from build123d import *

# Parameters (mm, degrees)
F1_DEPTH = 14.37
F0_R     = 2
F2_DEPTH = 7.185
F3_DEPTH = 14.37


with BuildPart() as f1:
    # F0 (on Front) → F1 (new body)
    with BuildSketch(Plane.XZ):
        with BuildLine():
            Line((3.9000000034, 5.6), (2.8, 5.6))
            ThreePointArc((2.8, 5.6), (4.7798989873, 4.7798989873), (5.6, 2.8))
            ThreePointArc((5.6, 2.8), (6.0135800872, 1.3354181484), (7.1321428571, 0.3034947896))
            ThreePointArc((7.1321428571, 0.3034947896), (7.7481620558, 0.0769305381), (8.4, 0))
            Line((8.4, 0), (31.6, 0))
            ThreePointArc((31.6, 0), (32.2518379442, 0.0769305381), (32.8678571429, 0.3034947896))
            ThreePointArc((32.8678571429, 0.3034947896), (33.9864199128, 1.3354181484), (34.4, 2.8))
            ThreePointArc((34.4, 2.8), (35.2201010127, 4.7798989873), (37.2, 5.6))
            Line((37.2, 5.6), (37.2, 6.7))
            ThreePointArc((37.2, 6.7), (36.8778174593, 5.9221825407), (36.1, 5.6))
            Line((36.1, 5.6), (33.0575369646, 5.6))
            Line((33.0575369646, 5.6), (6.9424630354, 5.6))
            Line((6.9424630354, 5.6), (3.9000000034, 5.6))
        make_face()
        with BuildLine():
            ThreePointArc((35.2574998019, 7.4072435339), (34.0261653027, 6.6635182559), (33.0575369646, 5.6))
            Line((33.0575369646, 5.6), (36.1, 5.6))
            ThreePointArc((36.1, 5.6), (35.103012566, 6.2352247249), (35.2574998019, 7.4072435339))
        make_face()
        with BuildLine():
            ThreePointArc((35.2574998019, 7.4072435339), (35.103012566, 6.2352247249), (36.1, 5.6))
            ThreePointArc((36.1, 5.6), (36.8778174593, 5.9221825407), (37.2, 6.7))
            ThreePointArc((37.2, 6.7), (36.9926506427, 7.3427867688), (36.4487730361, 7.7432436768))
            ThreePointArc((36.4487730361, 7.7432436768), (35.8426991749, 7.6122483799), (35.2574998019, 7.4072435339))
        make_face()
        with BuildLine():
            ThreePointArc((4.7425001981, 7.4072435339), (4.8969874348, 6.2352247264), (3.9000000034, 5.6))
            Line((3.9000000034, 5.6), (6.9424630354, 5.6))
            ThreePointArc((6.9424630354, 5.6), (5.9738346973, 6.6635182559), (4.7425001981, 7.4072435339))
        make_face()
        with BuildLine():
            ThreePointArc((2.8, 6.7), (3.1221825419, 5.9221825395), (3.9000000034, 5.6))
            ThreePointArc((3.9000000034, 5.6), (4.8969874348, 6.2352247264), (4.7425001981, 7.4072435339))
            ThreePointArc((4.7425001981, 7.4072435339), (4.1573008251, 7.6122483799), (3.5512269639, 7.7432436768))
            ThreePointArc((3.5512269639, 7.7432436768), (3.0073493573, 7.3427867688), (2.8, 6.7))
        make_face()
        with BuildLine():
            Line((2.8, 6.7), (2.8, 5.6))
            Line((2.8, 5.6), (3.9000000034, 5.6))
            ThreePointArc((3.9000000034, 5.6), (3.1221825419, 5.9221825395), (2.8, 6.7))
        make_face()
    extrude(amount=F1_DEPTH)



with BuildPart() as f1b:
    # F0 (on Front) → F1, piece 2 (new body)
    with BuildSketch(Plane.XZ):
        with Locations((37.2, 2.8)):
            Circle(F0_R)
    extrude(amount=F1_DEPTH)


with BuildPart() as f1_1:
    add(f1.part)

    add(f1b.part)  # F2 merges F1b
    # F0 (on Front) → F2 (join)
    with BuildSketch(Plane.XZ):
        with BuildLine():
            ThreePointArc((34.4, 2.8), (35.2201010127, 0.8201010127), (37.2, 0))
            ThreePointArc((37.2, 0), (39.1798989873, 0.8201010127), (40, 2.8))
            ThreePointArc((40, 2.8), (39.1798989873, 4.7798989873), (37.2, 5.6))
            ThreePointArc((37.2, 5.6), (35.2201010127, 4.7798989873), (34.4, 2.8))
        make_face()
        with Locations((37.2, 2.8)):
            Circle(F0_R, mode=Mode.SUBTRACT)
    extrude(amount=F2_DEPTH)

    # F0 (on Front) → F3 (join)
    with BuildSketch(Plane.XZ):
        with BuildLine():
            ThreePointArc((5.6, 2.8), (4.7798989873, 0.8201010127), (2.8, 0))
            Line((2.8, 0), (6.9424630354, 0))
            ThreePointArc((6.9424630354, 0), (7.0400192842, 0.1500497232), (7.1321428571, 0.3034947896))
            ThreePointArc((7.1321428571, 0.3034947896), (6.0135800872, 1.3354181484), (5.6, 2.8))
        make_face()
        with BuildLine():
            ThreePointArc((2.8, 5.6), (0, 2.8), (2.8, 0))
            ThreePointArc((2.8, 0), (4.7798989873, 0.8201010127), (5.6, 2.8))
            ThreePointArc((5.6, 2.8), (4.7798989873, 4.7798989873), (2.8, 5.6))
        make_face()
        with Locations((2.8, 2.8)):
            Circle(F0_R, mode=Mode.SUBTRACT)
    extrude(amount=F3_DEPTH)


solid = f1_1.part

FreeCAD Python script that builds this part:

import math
import FreeCAD as App
import Part
import Sketcher

V = App.Vector
Q = App.Units.Quantity

doc = App.newDocument("Part")
body = doc.addObject("PartDesign::Body", "Body")

# Sketch on XZ plane
sketch1 = body.newObject("Sketcher::SketchObject", "Sketch")
sketch1.AttachmentSupport = (doc.getObject("XZ_Plane"), [""])
sketch1.MapMode = "FlatFace"
sketch1.addGeometry(Part.ArcOfCircle(Part.Circle(V(2.8, 2.8, 0), V(0, 0, 1), 2.8), math.radians(0), math.radians(90)), False)
sketch1.addGeometry(Part.ArcOfCircle(Part.Circle(V(8.4, 2.8, 0), V(0, 0, 1), 2.8), math.radians(180), math.radians(243.076135)), False)
sketch1.addGeometry(Part.ArcOfCircle(Part.Circle(V(8.4, 2.8, 0), V(0, 0, 1), 2.8), math.radians(-116.923865), math.radians(-90)), False)
sketch1.addGeometry(Part.LineSegment(V(8.4, 0, 0), V(31.6, 0, 0)), False)
sketch1.addGeometry(Part.ArcOfCircle(Part.Circle(V(31.6, 2.8, 0), V(0, 0, 1), 2.8), math.radians(-90), math.radians(-63.076135)), False)
sketch1.addGeometry(Part.ArcOfCircle(Part.Circle(V(31.6, 2.8, 0), V(0, 0, 1), 2.8), math.radians(-63.076135), math.radians(0)), False)
sketch1.addGeometry(Part.ArcOfCircle(Part.Circle(V(37.2, 2.8, 0), V(0, 0, 1), 2.8), math.radians(90), math.radians(180)), False)
sketch1.addGeometry(Part.LineSegment(V(37.2, 5.6, 0), V(37.2, 6.7, 0)), False)
sketch1.addGeometry(Part.ArcOfCircle(Part.Circle(V(36.1, 6.7, 0), V(0, 0, 1), 1.1), math.radians(0), math.radians(71.514395)), False)
sketch1.addGeometry(Part.ArcOfCircle(Part.Circle(V(37.2, 2.8, 0), V(0, 0, 1), 5), math.radians(98.641148), math.radians(112.8612)), False)
sketch1.addGeometry(Part.ArcOfCircle(Part.Circle(V(37.2, 2.8, 0), V(0, 0, 1), 5), math.radians(112.8612), math.radians(145.944202)), False)
sketch1.addGeometry(Part.LineSegment(V(33.057537, 5.6, 0), V(6.942463, 5.6, 0)), False)
sketch1.addGeometry(Part.ArcOfCircle(Part.Circle(V(2.8, 2.8, 0), V(0, 0, 1), 5), math.radians(34.055798), math.radians(67.1388)), False)
sketch1.addGeometry(Part.ArcOfCircle(Part.Circle(V(2.8, 2.8, 0), V(0, 0, 1), 5), math.radians(67.1388), math.radians(81.358852)), False)
sketch1.addGeometry(Part.ArcOfCircle(Part.Circle(V(3.9, 6.7, 0), V(0, 0, 1), 1.1), math.radians(108.485605), math.radians(180)), False)
sketch1.addGeometry(Part.LineSegment(V(2.8, 6.7, 0), V(2.8, 5.6, 0)), False)
sketch1.addConstraint(Sketcher.Constraint("Tangent", 0, 1, 1, 1))
sketch1.addConstraint(Sketcher.Constraint("Tangent", 1, 2, 2, 1))
sketch1.addConstraint(Sketcher.Constraint("Tangent", 2, 2, 3, 1))
sketch1.addConstraint(Sketcher.Constraint("Tangent", 3, 2, 4, 1))
sketch1.addConstraint(Sketcher.Constraint("Tangent", 4, 2, 5, 1))
sketch1.addConstraint(Sketcher.Constraint("Tangent", 5, 2, 6, 2))
sketch1.addConstraint(Sketcher.Constraint("Coincident", 6, 1, 7, 1))
sketch1.addConstraint(Sketcher.Constraint("Tangent", 7, 2, 8, 1))
sketch1.addConstraint(Sketcher.Constraint("Coincident", 8, 2, 9, 1))
sketch1.addConstraint(Sketcher.Constraint("Tangent", 9, 2, 10, 1))
sketch1.addConstraint(Sketcher.Constraint("Coincident", 10, 2, 11, 1))
sketch1.addConstraint(Sketcher.Constraint("Coincident", 11, 2, 12, 1))
sketch1.addConstraint(Sketcher.Constraint("Tangent", 12, 2, 13, 1))
sketch1.addConstraint(Sketcher.Constraint("Coincident", 13, 2, 14, 1))
sketch1.addConstraint(Sketcher.Constraint("Tangent", 14, 2, 15, 1))
sketch1.addConstraint(Sketcher.Constraint("Coincident", 15, 2, 0, 2))
sketch1.addConstraint(Sketcher.Constraint("Horizontal", 3))
sketch1.addConstraint(Sketcher.Constraint("Vertical", 7))
sketch1.addConstraint(Sketcher.Constraint("Horizontal", 11))
sketch1.addConstraint(Sketcher.Constraint("Vertical", 15))
sketch1.addConstraint(Sketcher.Constraint("Coincident", 9, 3, 6, 3))
sketch1.addConstraint(Sketcher.Constraint("Coincident", 12, 3, 0, 3))
sketch1.addConstraint(Sketcher.Constraint("Equal", 0, 1))
sketch1.addConstraint(Sketcher.Constraint("Equal", 1, 2))
sketch1.addConstraint(Sketcher.Constraint("Equal", 2, 4))
sketch1.addConstraint(Sketcher.Constraint("Equal", 4, 5))
sketch1.addConstraint(Sketcher.Constraint("Equal", 5, 6))
sketch1.addConstraint(Sketcher.Constraint("Equal", 9, 10))
sketch1.addConstraint(Sketcher.Constraint("Equal", 10, 12))
sketch1.addConstraint(Sketcher.Constraint("Equal", 12, 13))
sketch1.addConstraint(Sketcher.Constraint("Equal", 8, 14))
sketch1.addConstraint(Sketcher.Constraint("PointOnObject", 2, 2, -1))
sketch1.addConstraint(Sketcher.Constraint("Horizontal", 0, 3, 1, 3))
sketch1.addConstraint(Sketcher.Constraint("Horizontal", 5, 3, 6, 3))
sketch1.addConstraint(Sketcher.Constraint("Horizontal", 8, 3, 14, 3))
sketch1.addConstraint(Sketcher.Constraint("Horizontal", 1, 2, 4, 2))
sketch1.addConstraint(Sketcher.Constraint("Horizontal", 6, 1, 10, 2))
sketch1.addConstraint(Sketcher.Constraint("Horizontal", 9, 2, 12, 2))
sketch1.addConstraint(Sketcher.Constraint("Horizontal", 8, 2, 13, 2))
sketch1.addConstraint(Sketcher.Constraint("Vertical", 10, 3, 6, 1))
sketch1.addConstraint(Sketcher.Constraint("Radius", 9, Q("5 mm")))
sketch1.addConstraint(Sketcher.Constraint("Radius", 0, Q("2.8 mm")))
sketch1.addConstraint(Sketcher.Constraint("Radius", 8, Q("1.1 mm")))
sketch1.addConstraint(Sketcher.Constraint("DistanceX", 3, 1, 3, 2, Q("23.2 mm")))
sketch1.addConstraint(Sketcher.Constraint("DistanceY", 7, 1, 7, 2, Q("1.1 mm")))
sketch1.addConstraint(Sketcher.Constraint("DistanceX", -1, 1, 0, 3, Q("2.8 mm")))
sketch1.addConstraint(Sketcher.Constraint("DistanceY", 9, 2, 8, 2, Q("0.336 mm")))
sketch1.addConstraint(Sketcher.Constraint("DistanceX", -1, 1, 1, 2, Q("7.132143 mm")))
pad1 = body.newObject("PartDesign::Pad", "Pad")
pad1.Profile = sketch1
pad1.Length = 14.37
body2 = doc.addObject("PartDesign::Body", "Body001")

# Sketch on XZ plane
sketch2 = body2.newObject("Sketcher::SketchObject", "Sketch001")
sketch2.AttachmentSupport = (doc.getObject("XZ_Plane001"), [""])
sketch2.MapMode = "FlatFace"
sketch2.addGeometry(Part.Circle(V(37.2, 2.8, 0), V(0, 0, 1), 2), False)
sketch2.addConstraint(Sketcher.Constraint("Diameter", 0, Q("4 mm")))
sketch2.addConstraint(Sketcher.Constraint("DistanceX", -1, 1, 0, 3, Q("37.2 mm")))
sketch2.addConstraint(Sketcher.Constraint("DistanceY", -1, 1, 0, 3, Q("2.8 mm")))
pad2 = body2.newObject("PartDesign::Pad", "Pad001")
pad2.Profile = sketch2
pad2.Length = 14.37
body.AllowCompound = True
doc.recompute()

boolean = body.newObject("PartDesign::Boolean", "Boolean")
boolean.Type = "Fuse"
boolean.addObjects([body2])

# Sketch on XZ plane
sketch3 = body.newObject("Sketcher::SketchObject", "Sketch002")
sketch3.AttachmentSupport = (doc.getObject("XZ_Plane"), [""])
sketch3.MapMode = "FlatFace"
sketch3.addGeometry(Part.ArcOfCircle(Part.Circle(V(37.2, 2.8, 0), V(0, 0, 1), 2.8), math.radians(180), math.radians(270)), False)
sketch3.addGeometry(Part.ArcOfCircle(Part.Circle(V(37.2, 2.8, 0), V(0, 0, 1), 2.8), math.radians(-90), math.radians(0)), False)
sketch3.addGeometry(Part.ArcOfCircle(Part.Circle(V(37.2, 2.8, 0), V(0, 0, 1), 2.8), math.radians(0), math.radians(90)), False)
sketch3.addGeometry(Part.ArcOfCircle(Part.Circle(V(37.2, 2.8, 0), V(0, 0, 1), 2.8), math.radians(90), math.radians(180)), False)
sketch3.addGeometry(Part.Circle(V(37.2, 2.8, 0), V(0, 0, 1), 2), False)
sketch3.addConstraint(Sketcher.Constraint("Tangent", 0, 2, 1, 1))
sketch3.addConstraint(Sketcher.Constraint("Tangent", 1, 2, 2, 1))
sketch3.addConstraint(Sketcher.Constraint("Tangent", 2, 2, 3, 1))
sketch3.addConstraint(Sketcher.Constraint("Tangent", 3, 2, 0, 1))
sketch3.addConstraint(Sketcher.Constraint("Coincident", 4, 3, 0, 3))
sketch3.addConstraint(Sketcher.Constraint("Equal", 0, 1))
sketch3.addConstraint(Sketcher.Constraint("PointOnObject", 0, 2, -1))
sketch3.addConstraint(Sketcher.Constraint("Horizontal", 4, 3, 1, 2))
sketch3.addConstraint(Sketcher.Constraint("Horizontal", 1, 2, 3, 2))
sketch3.addConstraint(Sketcher.Constraint("Vertical", 4, 3, 0, 2))
sketch3.addConstraint(Sketcher.Constraint("Vertical", 0, 2, 2, 2))
sketch3.addConstraint(Sketcher.Constraint("Diameter", 4, Q("4 mm")))
sketch3.addConstraint(Sketcher.Constraint("Radius", 0, Q("2.8 mm")))
sketch3.addConstraint(Sketcher.Constraint("DistanceX", -1, 1, 1, 2, Q("40 mm")))
pad3 = body.newObject("PartDesign::Pad", "Pad002")
pad3.Profile = sketch3
pad3.Length = 7.185

# Sketch on XZ plane
sketch4 = body.newObject("Sketcher::SketchObject", "Sketch003")
sketch4.AttachmentSupport = (doc.getObject("XZ_Plane"), [""])
sketch4.MapMode = "FlatFace"
sketch4.addGeometry(Part.LineSegment(V(2.8, 0, 0), V(6.942463, 0, 0)), False)
sketch4.addGeometry(Part.ArcOfCircle(Part.Circle(V(2.8, 2.8, 0), V(0, 0, 1), 5), math.radians(-34.055798), math.radians(-29.953768)), False)
sketch4.addGeometry(Part.ArcOfCircle(Part.Circle(V(8.4, 2.8, 0), V(0, 0, 1), 2.8), math.radians(180), math.radians(243.076135)), False)
sketch4.addGeometry(Part.ArcOfCircle(Part.Circle(V(2.8, 2.8, 0), V(0, 0, 1), 2.8), math.radians(0), math.radians(90)), False)
sketch4.addGeometry(Part.ArcOfCircle(Part.Circle(V(2.8, 2.8, 0), V(0, 0, 1), 2.8), math.radians(90), math.radians(270)), False)
sketch4.addGeometry(Part.Circle(V(2.8, 2.8, 0), V(0, 0, 1), 2), False)
sketch4.addConstraint(Sketcher.Constraint("Coincident", 0, 2, 1, 1))
sketch4.addConstraint(Sketcher.Constraint("Coincident", 1, 2, 2, 2))
sketch4.addConstraint(Sketcher.Constraint("Tangent", 2, 1, 3, 1))
sketch4.addConstraint(Sketcher.Constraint("Tangent", 3, 2, 4, 1))
sketch4.addConstraint(Sketcher.Constraint("Tangent", 4, 2, 0, 1))
sketch4.addConstraint(Sketcher.Constraint("Horizontal", 0))
sketch4.addConstraint(Sketcher.Constraint("Coincident", 3, 3, 1, 3))
sketch4.addConstraint(Sketcher.Constraint("Coincident", 5, 3, 1, 3))
sketch4.addConstraint(Sketcher.Constraint("Equal", 2, 3))
sketch4.addConstraint(Sketcher.Constraint("Equal", 3, 4))
sketch4.addConstraint(Sketcher.Constraint("PointOnObject", 0, 2, -1))
sketch4.addConstraint(Sketcher.Constraint("Horizontal", 1, 3, 2, 3))
sketch4.addConstraint(Sketcher.Constraint("Vertical", 5, 3, 3, 2))
sketch4.addConstraint(Sketcher.Constraint("Diameter", 5, Q("4 mm")))
sketch4.addConstraint(Sketcher.Constraint("Radius", 1, Q("5 mm")))
sketch4.addConstraint(Sketcher.Constraint("Radius", 2, Q("2.8 mm")))
sketch4.addConstraint(Sketcher.Constraint("DistanceX", -1, 1, 1, 3, Q("2.8 mm")))
pad4 = body.newObject("PartDesign::Pad", "Pad003")
pad4.Profile = sketch4
pad4.Length = 14.37

doc.recompute()
